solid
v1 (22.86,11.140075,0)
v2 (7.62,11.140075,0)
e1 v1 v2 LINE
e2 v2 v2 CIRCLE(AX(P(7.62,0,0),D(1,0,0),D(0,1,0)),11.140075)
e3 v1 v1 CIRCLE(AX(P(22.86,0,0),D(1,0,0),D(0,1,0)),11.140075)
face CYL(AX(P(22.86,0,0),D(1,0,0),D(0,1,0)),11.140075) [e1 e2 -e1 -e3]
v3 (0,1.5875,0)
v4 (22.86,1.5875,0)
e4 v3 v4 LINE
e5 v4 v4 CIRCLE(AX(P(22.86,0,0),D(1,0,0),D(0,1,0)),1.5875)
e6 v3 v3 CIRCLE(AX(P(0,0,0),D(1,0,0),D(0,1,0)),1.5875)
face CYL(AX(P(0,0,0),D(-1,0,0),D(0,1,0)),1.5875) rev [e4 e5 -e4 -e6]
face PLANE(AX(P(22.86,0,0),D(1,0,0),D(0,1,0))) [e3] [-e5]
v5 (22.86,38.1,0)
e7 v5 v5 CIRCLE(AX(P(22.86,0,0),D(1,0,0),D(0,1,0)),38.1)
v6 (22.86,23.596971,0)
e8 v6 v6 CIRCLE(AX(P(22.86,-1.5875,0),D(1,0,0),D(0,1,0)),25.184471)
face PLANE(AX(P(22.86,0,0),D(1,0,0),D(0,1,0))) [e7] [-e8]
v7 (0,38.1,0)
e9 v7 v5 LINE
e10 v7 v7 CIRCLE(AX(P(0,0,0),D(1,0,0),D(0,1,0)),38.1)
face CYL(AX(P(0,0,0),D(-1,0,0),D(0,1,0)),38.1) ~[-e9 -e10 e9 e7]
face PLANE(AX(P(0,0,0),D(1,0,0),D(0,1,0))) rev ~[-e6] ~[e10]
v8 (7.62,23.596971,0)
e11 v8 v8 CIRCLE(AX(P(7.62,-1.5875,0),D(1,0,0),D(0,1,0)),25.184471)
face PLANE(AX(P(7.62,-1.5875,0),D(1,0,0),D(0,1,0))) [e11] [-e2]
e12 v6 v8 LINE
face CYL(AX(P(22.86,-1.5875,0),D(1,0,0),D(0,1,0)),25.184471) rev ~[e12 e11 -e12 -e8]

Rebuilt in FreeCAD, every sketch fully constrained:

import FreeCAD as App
import Part
import Sketcher
from FreeCAD import Vector
Q = App.Units.Quantity

doc = App.newDocument("Part")
body = doc.addObject("PartDesign::Body", "Body")

sketch1 = doc.addObject("Sketcher::SketchObject", "Sketch")
body.addObject(sketch1)
sketch1.AttachmentSupport = (doc.YZ_Plane, [""])
sketch1.MapMode = "FlatFace"
sketch1.addGeometry(Part.Circle(Vector(0, 0, 0), Vector(0, 0, 1), 38.1), False)
sketch1.addGeometry(Part.Circle(Vector(0, 0, 0), Vector(0, 0, 1), 1.6), False)
sketch1.addConstraint(Sketcher.Constraint("Coincident", 0, 3, -1, 1))
sketch1.addConstraint(Sketcher.Constraint("Coincident", 1, 3, -1, 1))
sketch1.addConstraint(Sketcher.Constraint("Diameter", 0, Q("3 in")))
sketch1.addConstraint(Sketcher.Constraint("Diameter", 1, Q("0.125 in")))
pad1 = doc.addObject("PartDesign::Pad", "Pad")
body.addObject(pad1)
pad1.Profile = sketch1
pad1.Length = Q("0.9 in")

sketch2 = doc.addObject("Sketcher::SketchObject", "Sketch001")
body.addObject(sketch2)
sketch2.AttachmentSupport = (doc.YZ_Plane, [""])
sketch2.MapMode = "FlatFace"
sketch2.AttachmentOffset = App.Placement(Vector(0, 0, 0.9 * 25.4), App.Rotation())
sketch2.addGeometry(Part.Circle(Vector(-2, 0, 0), Vector(0, 0, 1), 25), False)
sketch2.addGeometry(Part.Circle(Vector(0, 0, 0), Vector(0, 0, 1), 11), False)
sketch2.addConstraint(Sketcher.Constraint("Coincident", 1, 3, -1, 1))
sketch2.addConstraint(Sketcher.Constraint("PointOnObject", 0, 3, -1))
sketch2.addConstraint(Sketcher.Constraint("Diameter", 0, 50.368942))
sketch2.addConstraint(Sketcher.Constraint("Diameter", 1, 22.28015))
sketch2.addConstraint(Sketcher.Constraint("DistanceX", 0, 3, -1, 1, Q("0.0625 in")))
pocket1 = doc.addObject("PartDesign::Pocket", "Pocket")
body.addObject(pocket1)
pocket1.Profile = sketch2
pocket1.Length = Q("0.6 in")

doc.recompute()
